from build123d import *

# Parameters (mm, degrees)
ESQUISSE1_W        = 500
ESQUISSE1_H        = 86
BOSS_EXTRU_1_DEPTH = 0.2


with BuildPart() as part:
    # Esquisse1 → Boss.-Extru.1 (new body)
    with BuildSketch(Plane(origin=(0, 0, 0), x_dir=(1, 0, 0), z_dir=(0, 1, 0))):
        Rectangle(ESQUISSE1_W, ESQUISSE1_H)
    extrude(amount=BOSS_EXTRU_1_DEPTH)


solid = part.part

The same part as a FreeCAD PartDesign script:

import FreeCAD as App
import Part
import Sketcher

doc = App.newDocument("Part")
params = doc.addObject("Spreadsheet::Sheet", "Params")
for row, (alias, value) in enumerate([
    ("sketch1_width", "500 mm"),
    ("sketch1_height", "86 mm"),
    ("pad1_length", "0.2 mm"),
], start=1):
    params.set(f"A{row}", alias)
    params.set(f"B{row}", "=" + value)
    params.setAlias(f"B{row}", alias)

body = doc.addObject("PartDesign::Body", "Body")

# Sketch on XZ plane
sketch1 = body.newObject("Sketcher::SketchObject", "Sketch")
sketch1.AttachmentSupport = (doc.getObject("XZ_Plane"), [""])
sketch1.MapMode = "FlatFace"
sketch1.addGeometry([
    Part.LineSegment(App.Vector(-250, -43, 0), App.Vector(-250, 43, 0)),
    Part.LineSegment(App.Vector(-250, 43, 0), App.Vector(250, 43, 0)),
    Part.LineSegment(App.Vector(250, 43, 0), App.Vector(250, -43, 0)),
    Part.LineSegment(App.Vector(250, -43, 0), App.Vector(-250, -43, 0)),
], False)
sketch1.addConstraint([
    Sketcher.Constraint("Coincident", 0, 2, 1, 1),
    Sketcher.Constraint("Coincident", 1, 2, 2, 1),
    Sketcher.Constraint("Coincident", 2, 2, 3, 1),
    Sketcher.Constraint("Coincident", 3, 2, 0, 1),
    Sketcher.Constraint("Vertical", 0),
    Sketcher.Constraint("Horizontal", 1),
    Sketcher.Constraint("Vertical", 2),
    Sketcher.Constraint("Horizontal", 3),
    Sketcher.Constraint("Symmetric", 0, 2, 2, 2, -1, 1),
    Sketcher.Constraint("DistanceX", 1, 1, 1, 2, 500.0),
    Sketcher.Constraint("DistanceY", 0, 1, 0, 2, 86.0),
])
sketch1.setExpression("Constraints[9]", "Params.sketch1_width")
sketch1.setExpression("Constraints[10]", "Params.sketch1_height")
pad1 = body.newObject("PartDesign::Pad", "Pad")
pad1.Profile = sketch1
pad1.setExpression("Length", "Params.pad1_length")
pad1.Reversed = True

doc.recompute()
